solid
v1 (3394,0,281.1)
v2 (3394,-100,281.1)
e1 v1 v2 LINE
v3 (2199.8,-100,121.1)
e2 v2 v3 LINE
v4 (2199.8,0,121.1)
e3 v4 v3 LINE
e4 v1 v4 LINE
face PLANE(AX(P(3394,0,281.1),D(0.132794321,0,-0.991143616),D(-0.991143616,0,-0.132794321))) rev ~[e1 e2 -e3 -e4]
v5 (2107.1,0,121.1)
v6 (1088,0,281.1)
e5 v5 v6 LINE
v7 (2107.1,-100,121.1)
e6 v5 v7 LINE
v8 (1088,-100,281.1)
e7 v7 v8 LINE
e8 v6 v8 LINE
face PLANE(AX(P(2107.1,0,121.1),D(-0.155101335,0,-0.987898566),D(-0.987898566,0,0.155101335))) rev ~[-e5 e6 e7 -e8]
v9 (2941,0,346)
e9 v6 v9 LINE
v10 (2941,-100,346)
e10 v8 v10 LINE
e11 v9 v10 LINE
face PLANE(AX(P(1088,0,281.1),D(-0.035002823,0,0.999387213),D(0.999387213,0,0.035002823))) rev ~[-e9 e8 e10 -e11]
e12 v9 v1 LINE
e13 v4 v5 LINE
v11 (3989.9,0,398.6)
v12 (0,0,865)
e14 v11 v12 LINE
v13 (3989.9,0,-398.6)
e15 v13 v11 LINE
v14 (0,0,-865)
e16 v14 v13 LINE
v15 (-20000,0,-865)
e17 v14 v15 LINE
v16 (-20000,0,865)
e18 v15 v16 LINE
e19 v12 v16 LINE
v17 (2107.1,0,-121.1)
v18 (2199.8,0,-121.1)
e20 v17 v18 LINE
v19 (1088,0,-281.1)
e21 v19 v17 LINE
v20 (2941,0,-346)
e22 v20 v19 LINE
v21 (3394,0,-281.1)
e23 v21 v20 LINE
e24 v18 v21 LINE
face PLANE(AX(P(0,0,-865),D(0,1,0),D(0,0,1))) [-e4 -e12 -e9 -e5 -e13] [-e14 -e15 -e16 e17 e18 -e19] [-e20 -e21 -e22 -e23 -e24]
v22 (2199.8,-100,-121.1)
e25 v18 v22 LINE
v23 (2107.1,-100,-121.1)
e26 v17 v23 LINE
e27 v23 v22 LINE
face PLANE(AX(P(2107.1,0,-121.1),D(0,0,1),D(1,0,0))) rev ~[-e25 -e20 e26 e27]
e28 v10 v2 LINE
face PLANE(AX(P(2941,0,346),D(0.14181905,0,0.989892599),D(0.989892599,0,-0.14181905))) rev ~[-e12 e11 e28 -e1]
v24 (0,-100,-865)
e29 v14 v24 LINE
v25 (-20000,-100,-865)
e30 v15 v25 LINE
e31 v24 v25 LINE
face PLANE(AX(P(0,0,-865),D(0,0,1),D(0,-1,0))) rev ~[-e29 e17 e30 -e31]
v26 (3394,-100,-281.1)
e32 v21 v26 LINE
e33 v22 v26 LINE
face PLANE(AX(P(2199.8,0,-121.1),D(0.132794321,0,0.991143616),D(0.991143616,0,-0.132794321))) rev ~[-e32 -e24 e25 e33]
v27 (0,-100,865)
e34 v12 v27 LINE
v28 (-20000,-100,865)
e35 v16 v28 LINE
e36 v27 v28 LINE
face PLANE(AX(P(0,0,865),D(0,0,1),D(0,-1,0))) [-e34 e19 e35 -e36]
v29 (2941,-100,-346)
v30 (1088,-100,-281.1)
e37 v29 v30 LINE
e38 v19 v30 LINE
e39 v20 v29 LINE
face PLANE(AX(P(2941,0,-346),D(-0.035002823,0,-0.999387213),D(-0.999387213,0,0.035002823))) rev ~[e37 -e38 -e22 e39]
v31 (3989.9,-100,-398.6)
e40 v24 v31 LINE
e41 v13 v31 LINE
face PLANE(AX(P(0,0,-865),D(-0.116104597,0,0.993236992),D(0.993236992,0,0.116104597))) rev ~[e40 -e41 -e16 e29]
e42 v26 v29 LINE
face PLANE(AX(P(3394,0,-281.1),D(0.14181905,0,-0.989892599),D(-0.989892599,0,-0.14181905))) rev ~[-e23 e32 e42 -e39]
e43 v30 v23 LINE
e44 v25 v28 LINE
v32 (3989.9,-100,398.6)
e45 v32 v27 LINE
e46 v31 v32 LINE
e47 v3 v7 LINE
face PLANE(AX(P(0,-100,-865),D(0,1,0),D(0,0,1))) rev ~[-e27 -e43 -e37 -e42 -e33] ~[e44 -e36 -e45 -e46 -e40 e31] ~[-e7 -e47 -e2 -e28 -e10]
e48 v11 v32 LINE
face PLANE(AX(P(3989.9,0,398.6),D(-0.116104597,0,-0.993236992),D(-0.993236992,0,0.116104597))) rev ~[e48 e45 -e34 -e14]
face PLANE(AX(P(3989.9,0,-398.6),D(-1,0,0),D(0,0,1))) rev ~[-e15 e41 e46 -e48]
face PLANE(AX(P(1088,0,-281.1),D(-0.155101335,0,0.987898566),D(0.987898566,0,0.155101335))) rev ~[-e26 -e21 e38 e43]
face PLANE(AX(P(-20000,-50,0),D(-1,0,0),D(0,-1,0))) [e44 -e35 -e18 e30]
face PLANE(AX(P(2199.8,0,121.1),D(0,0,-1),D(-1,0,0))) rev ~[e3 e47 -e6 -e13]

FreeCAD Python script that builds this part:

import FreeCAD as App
import Part
import Sketcher
Q = App.Units.Quantity

doc = App.newDocument("Part")
params = doc.addObject("Spreadsheet::Sheet", "Params")
for row, (alias, value) in enumerate([
    ("sketch1_height", "1730 mm"),
    ("sketch1_width", "92.7 mm"),
    ("sketch1_height2", "797.2 mm"),
    ("pad1_length", "100 mm"),
    ("sketch2_width", "100 mm"),
    ("sketch2_height", "1730 mm"),
    ("pad2_length", "20000 mm"),
], start=1):
    params.set(f"A{row}", alias)
    params.set(f"B{row}", "=" + value)
    params.setAlias(f"B{row}", alias)

body = doc.addObject("PartDesign::Body", "Body")

# Sketch on XZ plane
sketch1 = body.newObject("Sketcher::SketchObject", "Sketch")
sketch1.AttachmentSupport = (doc.getObject("XZ_Plane"), [""])
sketch1.MapMode = "FlatFace"
sketch1.addGeometry([
    Part.LineSegment(App.Vector(3989.9, 398.6, 0), App.Vector(0, 865, 0)),  # 0
    Part.LineSegment(App.Vector(0, 865, 0), App.Vector(0, -865, 0)),  # 1
    Part.LineSegment(App.Vector(0, -865, 0), App.Vector(3989.9, -398.6, 0)),  # 2
    Part.LineSegment(App.Vector(3989.9, -398.6, 0), App.Vector(3989.9, 398.6, 0)),  # 3
    Part.LineSegment(App.Vector(2199.8, -121.1, 0), App.Vector(3394, -281.1, 0)),  # 4
    Part.LineSegment(App.Vector(3394, -281.1, 0), App.Vector(2941, -346, 0)),  # 5
    Part.LineSegment(App.Vector(2941, -346, 0), App.Vector(1088, -281.1, 0)),  # 6
    Part.LineSegment(App.Vector(1088, -281.1, 0), App.Vector(2107.1, -121.1, 0)),  # 7
    Part.LineSegment(App.Vector(2107.1, -121.1, 0), App.Vector(2199.8, -121.1, 0)),  # 8
    Part.LineSegment(App.Vector(2199.8, 121.1, 0), App.Vector(2107.1, 121.1, 0)),  # 9
    Part.LineSegment(App.Vector(2107.1, 121.1, 0), App.Vector(1088, 281.1, 0)),  # 10
    Part.LineSegment(App.Vector(1088, 281.1, 0), App.Vector(2941, 346, 0)),  # 11
    Part.LineSegment(App.Vector(2941, 346, 0), App.Vector(3394, 281.1, 0)),  # 12
    Part.LineSegment(App.Vector(3394, 281.1, 0), App.Vector(2199.8, 121.1, 0)),  # 13
], False)
sketch1.addConstraint([
    Sketcher.Constraint("Coincident", 0, 2, 1, 1),
    Sketcher.Constraint("Coincident", 1, 2, 2, 1),
    Sketcher.Constraint("Coincident", 2, 2, 3, 1),
    Sketcher.Constraint("Coincident", 3, 2, 0, 1),
    Sketcher.Constraint("Coincident", 4, 2, 5, 1),
    Sketcher.Constraint("Coincident", 5, 2, 6, 1),
    Sketcher.Constraint("Coincident", 6, 2, 7, 1),
    Sketcher.Constraint("Coincident", 7, 2, 8, 1),
    Sketcher.Constraint("Coincident", 8, 2, 4, 1),
    Sketcher.Constraint("Coincident", 9, 2, 10, 1),
    Sketcher.Constraint("Coincident", 10, 2, 11, 1),
    Sketcher.Constraint("Coincident", 11, 2, 12, 1),
    Sketcher.Constraint("Coincident", 12, 2, 13, 1),
    Sketcher.Constraint("Coincident", 13, 2, 9, 1),
    Sketcher.Constraint("Vertical", 1),
    Sketcher.Constraint("Vertical", 3),
    Sketcher.Constraint("Horizontal", 8),
    Sketcher.Constraint("Horizontal", 9),
    Sketcher.Constraint("Symmetric", 0, 2, 1, 2, -1, 1),
    Sketcher.Constraint("Symmetric", 7, 2, 9, 2, -1),
    Sketcher.Constraint("Symmetric", 6, 2, 10, 2, -1),
    Sketcher.Constraint("Symmetric", 5, 2, 11, 2, -1),
    Sketcher.Constraint("Symmetric", 4, 2, 12, 2, -1),
    Sketcher.Constraint("Horizontal", 4, 2, 6, 2),
    Sketcher.Constraint("Vertical", 8, 2, 13, 2),
    Sketcher.Constraint("Equal", 0, 2),
    Sketcher.Constraint("DistanceY", 1, 2, 1, 1, Q("1730 mm")),
    Sketcher.Constraint("DistanceX", 8, 1, 8, 2, Q("92.7 mm")),
    Sketcher.Constraint("DistanceY", 3, 1, 3, 2, Q("797.2 mm")),
    Sketcher.Constraint("DistanceX", -1, 1, 4, 2, Q("3394 mm")),
    Sketcher.Constraint("DistanceX", -1, 1, 5, 2, Q("2941 mm")),
    Sketcher.Constraint("DistanceY", 5, 2, -1, 1, Q("346 mm")),
    Sketcher.Constraint("DistanceX", -1, 1, 6, 2, Q("1088 mm")),
    Sketcher.Constraint("DistanceY", 6, 2, 7, 2, Q("160 mm")),
    Sketcher.Constraint("DistanceX", -1, 1, 2, 2, Q("3989.9 mm")),
    Sketcher.Constraint("DistanceY", 4, 2, -1, 1, Q("281.1 mm")),
    Sketcher.Constraint("DistanceX", -1, 1, 7, 2, Q("2107.1 mm")),
])
sketch1.setExpression("Constraints[26]", "Params.sketch1_height")
sketch1.setExpression("Constraints[27]", "Params.sketch1_width")
sketch1.setExpression("Constraints[28]", "Params.sketch1_height2")
pad1 = body.newObject("PartDesign::Pad", "Pad")
pad1.Profile = sketch1
pad1.setExpression("Length", "Params.pad1_length")

# Sketch on YZ plane
sketch2 = body.newObject("Sketcher::SketchObject", "Sketch001")
sketch2.AttachmentSupport = (doc.getObject("YZ_Plane"), [""])
sketch2.MapMode = "FlatFace"
sketch2.addGeometry([
    Part.LineSegment(App.Vector(0, 865, 0), App.Vector(0, -865, 0)),
    Part.LineSegment(App.Vector(0, -865, 0), App.Vector(-100, -865, 0)),
    Part.LineSegment(App.Vector(-100, -865, 0), App.Vector(-100, 865, 0)),
    Part.LineSegment(App.Vector(-100, 865, 0), App.Vector(0, 865, 0)),
], False)
sketch2.addConstraint([
    Sketcher.Constraint("Coincident", 0, 2, 1, 1),
    Sketcher.Constraint("Coincident", 1, 2, 2, 1),
    Sketcher.Constraint("Coincident", 2, 2, 3, 1),
    Sketcher.Constraint("Coincident", 3, 2, 0, 1),
    Sketcher.Constraint("Vertical", 0),
    Sketcher.Constraint("Horizontal", 1),
    Sketcher.Constraint("Vertical", 2),
    Sketcher.Constraint("Horizontal", 3),
    Sketcher.Constraint("Symmetric", 0, 2, 3, 2, -1, 1),
    Sketcher.Constraint("DistanceX", 1, 2, 1, 1, Q("100 mm")),
    Sketcher.Constraint("DistanceY", 0, 2, 0, 1, Q("1730 mm")),
])
sketch2.setExpression("Constraints[9]", "Params.sketch2_width")
sketch2.setExpression("Constraints[10]", "Params.sketch2_height")
pad2 = body.newObject("PartDesign::Pad", "Pad001")
pad2.Profile = sketch2
pad2.setExpression("Length", "Params.pad2_length")
pad2.Reversed = True

doc.recompute()
